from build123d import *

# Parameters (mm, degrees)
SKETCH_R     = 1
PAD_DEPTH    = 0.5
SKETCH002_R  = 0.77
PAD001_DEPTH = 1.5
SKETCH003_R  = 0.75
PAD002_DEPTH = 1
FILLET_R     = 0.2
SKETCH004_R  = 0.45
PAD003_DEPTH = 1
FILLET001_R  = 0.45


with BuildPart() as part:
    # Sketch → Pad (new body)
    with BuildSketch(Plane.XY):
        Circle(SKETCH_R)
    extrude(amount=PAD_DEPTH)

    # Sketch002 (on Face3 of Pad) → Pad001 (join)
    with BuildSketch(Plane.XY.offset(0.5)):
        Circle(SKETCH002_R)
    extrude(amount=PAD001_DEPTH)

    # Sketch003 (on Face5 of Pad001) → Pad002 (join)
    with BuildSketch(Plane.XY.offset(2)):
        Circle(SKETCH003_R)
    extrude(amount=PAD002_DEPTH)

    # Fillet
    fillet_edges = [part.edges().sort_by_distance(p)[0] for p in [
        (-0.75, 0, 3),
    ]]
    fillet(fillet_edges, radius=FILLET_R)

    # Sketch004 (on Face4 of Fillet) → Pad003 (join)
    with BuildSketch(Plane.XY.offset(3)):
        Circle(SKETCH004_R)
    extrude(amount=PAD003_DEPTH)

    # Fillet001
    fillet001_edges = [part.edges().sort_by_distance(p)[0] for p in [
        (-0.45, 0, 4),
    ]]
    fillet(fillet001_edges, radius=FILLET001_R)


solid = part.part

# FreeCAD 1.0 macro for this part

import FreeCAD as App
import Part
import Sketcher
from FreeCAD import Vector


def edges_at(feature, points):
    """Names of the edges that pass closest to the given points."""
    edges = feature.Shape.Edges
    near = lambda p: min(range(len(edges)), key=lambda i: edges[i].distToShape(Part.Vertex(*p))[0])
    return sorted({f"Edge{near(p) + 1}" for p in points})

doc = App.newDocument("Part")
params = doc.addObject("Spreadsheet::Sheet", "Params")
for row, (alias, value) in enumerate([
    ("sketch1_diameter", "2 mm"),
    ("pad1_length", "0.5 mm"),
    ("sketch2_diameter", "1.54 mm"),
    ("pad2_length", "1.5 mm"),
    ("sketch3_diameter", "1.5 mm"),
    ("pad3_length", "1 mm"),
    ("fillet_radius", "0.2 mm"),
    ("sketch4_diameter", "0.9 mm"),
    ("pad4_length", "1 mm"),
    ("fillet2_radius", "0.45 mm"),
], start=1):
    params.set(f"A{row}", alias)
    params.set(f"B{row}", "=" + value)
    params.setAlias(f"B{row}", alias)

body = doc.addObject("PartDesign::Body", "Body")

sketch1 = body.newObject("Sketcher::SketchObject", "Sketch")
sketch1.AttachmentSupport = (doc.getObject("XY_Plane"), [""])
sketch1.MapMode = "FlatFace"
sketch1.addGeometry(Part.Circle(Vector(0, 0, 0), Vector(0, 0, 1), 1), False)
sketch1.addConstraint([
    Sketcher.Constraint("Coincident", 0, 3, -1, 1),
    Sketcher.Constraint("Diameter", 0, 2.0),
])
sketch1.setExpression("Constraints[1]", "Params.sketch1_diameter")
pad1 = body.newObject("PartDesign::Pad", "Pad")
pad1.Profile = sketch1
pad1.setExpression("Length", "Params.pad1_length")

sketch2 = body.newObject("Sketcher::SketchObject", "Sketch001")
sketch2.AttachmentSupport = (doc.getObject("XY_Plane"), [""])
sketch2.MapMode = "FlatFace"
sketch2.AttachmentOffset = App.Placement(Vector(0, 0, 0.5), App.Rotation())
sketch2.addGeometry(Part.Circle(Vector(0, 0, 0), Vector(0, 0, 1), 0.8), False)
sketch2.addConstraint([
    Sketcher.Constraint("Coincident", 0, 3, -1, 1),
    Sketcher.Constraint("Diameter", 0, 1.54),
])
sketch2.setExpression("Constraints[1]", "Params.sketch2_diameter")
pad2 = body.newObject("PartDesign::Pad", "Pad001")
pad2.Profile = sketch2
pad2.setExpression("Length", "Params.pad2_length")

sketch3 = body.newObject("Sketcher::SketchObject", "Sketch002")
sketch3.AttachmentSupport = (doc.getObject("XY_Plane"), [""])
sketch3.MapMode = "FlatFace"
sketch3.AttachmentOffset = App.Placement(Vector(0, 0, 2), App.Rotation())
sketch3.addGeometry(Part.Circle(Vector(0, 0, 0), Vector(0, 0, 1), 0.8), False)
sketch3.addConstraint([
    Sketcher.Constraint("Coincident", 0, 3, -1, 1),
    Sketcher.Constraint("Diameter", 0, 1.5),
])
sketch3.setExpression("Constraints[1]", "Params.sketch3_diameter")
pad3 = body.newObject("PartDesign::Pad", "Pad002")
pad3.Profile = sketch3
pad3.setExpression("Length", "Params.pad3_length")
doc.recompute()

fillet = body.newObject("PartDesign::Fillet", "Fillet")
fillet.Base = (pad3, edges_at(pad3, [(-0.75, 0, 3)]))
fillet.setExpression("Radius", "Params.fillet_radius")

sketch4 = body.newObject("Sketcher::SketchObject", "Sketch003")
sketch4.AttachmentSupport = (doc.getObject("XY_Plane"), [""])
sketch4.MapMode = "FlatFace"
sketch4.AttachmentOffset = App.Placement(Vector(0, 0, 3), App.Rotation())
sketch4.addGeometry(Part.Circle(Vector(0, 0, 0), Vector(0, 0, 1), 0.45), False)
sketch4.addConstraint([
    Sketcher.Constraint("Coincident", 0, 3, -1, 1),
    Sketcher.Constraint("Diameter", 0, 0.9),
])
sketch4.setExpression("Constraints[1]", "Params.sketch4_diameter")
pad4 = body.newObject("PartDesign::Pad", "Pad003")
pad4.Profile = sketch4
pad4.setExpression("Length", "Params.pad4_length")
doc.recompute()

fillet2 = body.newObject("PartDesign::Fillet", "Fillet001")
fillet2.Base = (pad4, edges_at(pad4, [(-0.45, 0, 4)]))
fillet2.setExpression("Radius", "Params.fillet2_radius")

doc.recompute()
